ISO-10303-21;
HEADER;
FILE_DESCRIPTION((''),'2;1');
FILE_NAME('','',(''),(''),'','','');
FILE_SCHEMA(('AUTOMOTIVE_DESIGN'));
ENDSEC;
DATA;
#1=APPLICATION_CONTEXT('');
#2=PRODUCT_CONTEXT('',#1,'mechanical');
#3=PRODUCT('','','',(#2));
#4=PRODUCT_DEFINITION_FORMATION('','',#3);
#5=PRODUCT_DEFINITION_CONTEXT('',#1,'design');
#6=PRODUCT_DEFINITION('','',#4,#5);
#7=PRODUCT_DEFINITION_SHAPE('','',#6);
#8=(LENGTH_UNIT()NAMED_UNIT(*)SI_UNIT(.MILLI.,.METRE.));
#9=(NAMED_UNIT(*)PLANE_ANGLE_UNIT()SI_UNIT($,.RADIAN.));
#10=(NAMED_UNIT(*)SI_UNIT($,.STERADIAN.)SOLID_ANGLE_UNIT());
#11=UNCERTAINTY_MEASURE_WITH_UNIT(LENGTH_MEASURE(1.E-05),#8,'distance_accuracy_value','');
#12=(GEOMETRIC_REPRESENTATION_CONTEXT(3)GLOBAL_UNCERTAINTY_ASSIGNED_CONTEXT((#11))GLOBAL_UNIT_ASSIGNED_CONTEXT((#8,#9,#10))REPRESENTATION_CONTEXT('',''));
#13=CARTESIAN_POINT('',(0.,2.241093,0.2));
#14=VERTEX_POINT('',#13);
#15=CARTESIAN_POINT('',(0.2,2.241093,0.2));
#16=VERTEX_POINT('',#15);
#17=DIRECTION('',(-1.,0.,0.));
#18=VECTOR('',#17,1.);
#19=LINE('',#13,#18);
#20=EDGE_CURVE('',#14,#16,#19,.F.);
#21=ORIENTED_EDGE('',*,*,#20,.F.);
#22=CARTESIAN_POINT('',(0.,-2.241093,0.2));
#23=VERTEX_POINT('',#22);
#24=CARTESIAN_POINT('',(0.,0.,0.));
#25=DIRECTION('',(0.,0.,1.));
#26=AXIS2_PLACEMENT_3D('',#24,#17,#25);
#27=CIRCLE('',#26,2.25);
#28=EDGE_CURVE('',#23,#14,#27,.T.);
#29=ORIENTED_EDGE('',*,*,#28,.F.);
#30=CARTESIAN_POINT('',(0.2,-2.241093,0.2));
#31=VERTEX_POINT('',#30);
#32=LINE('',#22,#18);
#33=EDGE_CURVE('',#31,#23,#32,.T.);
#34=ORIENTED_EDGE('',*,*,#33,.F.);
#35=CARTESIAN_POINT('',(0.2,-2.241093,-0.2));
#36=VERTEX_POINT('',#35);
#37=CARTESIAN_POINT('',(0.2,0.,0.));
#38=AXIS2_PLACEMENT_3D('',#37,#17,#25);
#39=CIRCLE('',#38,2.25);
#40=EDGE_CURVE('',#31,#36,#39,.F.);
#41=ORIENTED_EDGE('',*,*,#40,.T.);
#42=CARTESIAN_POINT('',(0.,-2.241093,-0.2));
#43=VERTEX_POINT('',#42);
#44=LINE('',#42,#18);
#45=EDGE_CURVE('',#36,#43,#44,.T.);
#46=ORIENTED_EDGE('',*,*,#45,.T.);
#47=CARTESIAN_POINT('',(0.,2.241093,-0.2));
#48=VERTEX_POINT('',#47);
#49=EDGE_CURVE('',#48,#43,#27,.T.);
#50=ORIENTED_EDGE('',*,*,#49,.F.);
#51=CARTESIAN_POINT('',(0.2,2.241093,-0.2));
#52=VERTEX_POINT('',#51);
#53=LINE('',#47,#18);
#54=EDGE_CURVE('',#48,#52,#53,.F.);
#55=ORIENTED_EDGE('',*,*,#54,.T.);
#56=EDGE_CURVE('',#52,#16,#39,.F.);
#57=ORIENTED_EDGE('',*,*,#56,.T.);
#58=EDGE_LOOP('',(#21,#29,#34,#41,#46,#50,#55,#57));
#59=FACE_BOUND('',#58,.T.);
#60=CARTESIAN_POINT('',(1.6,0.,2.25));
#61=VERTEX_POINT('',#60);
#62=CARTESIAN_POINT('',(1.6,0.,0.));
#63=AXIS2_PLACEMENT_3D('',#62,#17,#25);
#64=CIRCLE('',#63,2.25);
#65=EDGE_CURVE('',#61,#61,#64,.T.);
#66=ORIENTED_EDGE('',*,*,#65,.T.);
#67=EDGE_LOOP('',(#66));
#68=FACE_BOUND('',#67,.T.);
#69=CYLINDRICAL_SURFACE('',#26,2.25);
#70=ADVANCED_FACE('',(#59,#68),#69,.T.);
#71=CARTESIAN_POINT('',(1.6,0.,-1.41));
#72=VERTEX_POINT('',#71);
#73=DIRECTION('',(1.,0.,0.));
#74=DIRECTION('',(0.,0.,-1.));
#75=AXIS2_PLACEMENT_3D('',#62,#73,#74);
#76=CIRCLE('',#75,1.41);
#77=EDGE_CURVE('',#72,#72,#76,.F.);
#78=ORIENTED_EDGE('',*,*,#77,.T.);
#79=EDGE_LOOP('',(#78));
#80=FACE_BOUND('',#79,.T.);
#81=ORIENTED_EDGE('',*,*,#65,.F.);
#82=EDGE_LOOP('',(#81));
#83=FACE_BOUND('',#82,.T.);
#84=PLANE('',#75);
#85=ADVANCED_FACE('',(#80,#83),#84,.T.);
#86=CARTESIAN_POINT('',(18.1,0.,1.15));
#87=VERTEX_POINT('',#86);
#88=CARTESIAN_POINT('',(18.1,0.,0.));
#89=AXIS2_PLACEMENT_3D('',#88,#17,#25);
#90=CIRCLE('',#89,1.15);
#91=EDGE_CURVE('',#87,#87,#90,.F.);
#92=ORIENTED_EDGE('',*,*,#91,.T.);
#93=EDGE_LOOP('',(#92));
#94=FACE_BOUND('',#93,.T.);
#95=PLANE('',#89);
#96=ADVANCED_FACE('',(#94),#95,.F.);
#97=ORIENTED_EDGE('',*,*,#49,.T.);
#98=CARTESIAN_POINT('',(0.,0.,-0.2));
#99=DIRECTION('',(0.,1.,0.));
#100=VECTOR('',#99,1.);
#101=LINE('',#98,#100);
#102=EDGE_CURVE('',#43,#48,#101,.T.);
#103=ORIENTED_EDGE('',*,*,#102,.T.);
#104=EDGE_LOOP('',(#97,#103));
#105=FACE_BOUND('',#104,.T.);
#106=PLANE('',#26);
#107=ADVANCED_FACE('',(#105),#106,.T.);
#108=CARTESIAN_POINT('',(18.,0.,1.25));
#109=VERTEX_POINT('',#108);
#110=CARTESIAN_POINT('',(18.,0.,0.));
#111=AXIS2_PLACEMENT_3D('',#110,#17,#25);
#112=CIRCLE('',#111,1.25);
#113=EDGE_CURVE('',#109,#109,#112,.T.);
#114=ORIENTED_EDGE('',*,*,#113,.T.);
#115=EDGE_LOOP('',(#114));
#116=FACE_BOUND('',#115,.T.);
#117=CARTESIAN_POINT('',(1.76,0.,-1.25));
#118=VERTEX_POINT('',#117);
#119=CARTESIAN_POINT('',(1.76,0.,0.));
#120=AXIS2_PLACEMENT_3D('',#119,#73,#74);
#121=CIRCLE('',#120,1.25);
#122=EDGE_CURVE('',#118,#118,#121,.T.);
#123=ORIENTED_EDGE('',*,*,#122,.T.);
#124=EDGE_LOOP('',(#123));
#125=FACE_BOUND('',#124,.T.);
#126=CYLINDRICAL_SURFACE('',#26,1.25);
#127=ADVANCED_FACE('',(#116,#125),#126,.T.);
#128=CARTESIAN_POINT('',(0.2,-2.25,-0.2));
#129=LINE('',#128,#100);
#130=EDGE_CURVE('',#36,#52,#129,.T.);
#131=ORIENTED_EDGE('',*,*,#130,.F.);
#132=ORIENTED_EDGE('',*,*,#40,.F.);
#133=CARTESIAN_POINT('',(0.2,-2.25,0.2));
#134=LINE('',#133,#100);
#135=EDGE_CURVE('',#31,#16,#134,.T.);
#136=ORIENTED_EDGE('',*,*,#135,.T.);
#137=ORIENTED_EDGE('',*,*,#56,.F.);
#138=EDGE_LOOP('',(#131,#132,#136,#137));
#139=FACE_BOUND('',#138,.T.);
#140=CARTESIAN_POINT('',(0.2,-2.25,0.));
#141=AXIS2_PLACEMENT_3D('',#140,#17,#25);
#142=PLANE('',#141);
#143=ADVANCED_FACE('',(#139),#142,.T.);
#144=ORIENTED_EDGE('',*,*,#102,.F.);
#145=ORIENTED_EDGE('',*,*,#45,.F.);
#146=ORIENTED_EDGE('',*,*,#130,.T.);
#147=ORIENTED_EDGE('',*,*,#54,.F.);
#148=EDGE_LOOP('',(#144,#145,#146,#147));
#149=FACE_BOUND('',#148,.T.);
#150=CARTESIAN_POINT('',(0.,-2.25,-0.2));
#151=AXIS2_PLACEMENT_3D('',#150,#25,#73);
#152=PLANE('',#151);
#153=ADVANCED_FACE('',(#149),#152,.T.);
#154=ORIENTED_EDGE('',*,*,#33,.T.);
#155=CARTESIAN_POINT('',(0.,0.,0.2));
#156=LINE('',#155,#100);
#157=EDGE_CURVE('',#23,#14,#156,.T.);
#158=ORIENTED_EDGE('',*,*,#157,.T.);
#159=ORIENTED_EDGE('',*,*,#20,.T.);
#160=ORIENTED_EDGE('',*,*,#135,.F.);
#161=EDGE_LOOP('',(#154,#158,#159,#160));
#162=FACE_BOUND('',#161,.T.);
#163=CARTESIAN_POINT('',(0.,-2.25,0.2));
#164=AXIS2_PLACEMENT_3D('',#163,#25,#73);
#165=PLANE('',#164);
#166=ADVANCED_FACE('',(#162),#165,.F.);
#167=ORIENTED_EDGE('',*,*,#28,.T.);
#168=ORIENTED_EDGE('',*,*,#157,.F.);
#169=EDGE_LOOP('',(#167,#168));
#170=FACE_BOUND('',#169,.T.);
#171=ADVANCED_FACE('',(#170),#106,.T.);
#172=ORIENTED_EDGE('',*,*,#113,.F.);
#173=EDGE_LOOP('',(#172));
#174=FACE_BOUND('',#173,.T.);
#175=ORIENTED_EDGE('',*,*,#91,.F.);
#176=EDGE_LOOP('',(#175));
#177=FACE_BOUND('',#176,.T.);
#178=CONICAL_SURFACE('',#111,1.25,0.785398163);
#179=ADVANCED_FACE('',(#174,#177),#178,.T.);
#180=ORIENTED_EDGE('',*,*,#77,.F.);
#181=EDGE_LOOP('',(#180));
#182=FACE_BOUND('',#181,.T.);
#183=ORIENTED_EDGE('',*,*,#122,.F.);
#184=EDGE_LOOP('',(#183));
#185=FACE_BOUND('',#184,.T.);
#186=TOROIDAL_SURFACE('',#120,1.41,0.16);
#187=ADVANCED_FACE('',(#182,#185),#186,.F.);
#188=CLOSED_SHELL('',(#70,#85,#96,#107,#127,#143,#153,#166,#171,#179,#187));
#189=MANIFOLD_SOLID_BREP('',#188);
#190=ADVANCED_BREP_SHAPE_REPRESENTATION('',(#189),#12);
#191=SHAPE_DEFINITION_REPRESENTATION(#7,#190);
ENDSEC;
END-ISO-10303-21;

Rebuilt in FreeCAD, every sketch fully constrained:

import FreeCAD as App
import Part
import Sketcher
from FreeCAD import Vector


def edges_at(feature, points):
    """Names of the edges that pass closest to the given points."""
    edges = feature.Shape.Edges
    near = lambda p: min(range(len(edges)), key=lambda i: edges[i].distToShape(Part.Vertex(*p))[0])
    return sorted({f"Edge{near(p) + 1}" for p in points})


def add_polygon(sketch, points):
    """Adds a closed chain of lines whose ends are joined by coincident constraints."""
    first, n = sketch.GeometryCount, len(points)
    for a, b in zip(points, points[1:] + points[:1]):
        sketch.addGeometry(Part.LineSegment(App.Vector(*a, 0), App.Vector(*b, 0)), False)
    for i in range(n):
        sketch.addConstraint(Sketcher.Constraint("Coincident", first + i, 2, first + (i + 1) % n, 1))

doc = App.newDocument("Part")
body = doc.addObject("PartDesign::Body", "Body")

sketch1 = body.newObject("Sketcher::SketchObject", "Sketch")
sketch1.AttachmentSupport = (doc.getObject("XY_Plane"), [""])
sketch1.MapMode = "FlatFace"
add_polygon(sketch1, [(0, 2.2), (0, 0), (18.1, 0), (18.1, 1.2), (1.6, 1.2), (1.6, 2.2)])
sketch1.addConstraint(Sketcher.Constraint("Vertical", 0))
sketch1.addConstraint(Sketcher.Constraint("Horizontal", 1))
sketch1.addConstraint(Sketcher.Constraint("Vertical", 2))
sketch1.addConstraint(Sketcher.Constraint("Horizontal", 3))
sketch1.addConstraint(Sketcher.Constraint("Vertical", 4))
sketch1.addConstraint(Sketcher.Constraint("Horizontal", 5))
sketch1.addConstraint(Sketcher.Constraint("Coincident", 0, 2, -1, 1))
sketch1.addConstraint(Sketcher.Constraint("DistanceY", 4, 1, 4, 2, 1.0))
sketch1.addConstraint(Sketcher.Constraint("DistanceX", 1, 1, 1, 2, 18.1))
sketch1.addConstraint(Sketcher.Constraint("DistanceX", 3, 2, 3, 1, 16.5))
sketch1.addConstraint(Sketcher.Constraint("DistanceY", 0, 2, 0, 1, 2.25))
revolution = body.newObject("PartDesign::Revolution", "Revolution")
revolution.Profile = sketch1
revolution.ReferenceAxis = (sketch1, ["H_Axis"])
revolution.Angle = 360
doc.recompute()

chamfer = body.newObject("PartDesign::Chamfer", "Chamfer")
chamfer.Base = (revolution, edges_at(revolution, [(18.1, 0, -1.25)]))
chamfer.Size = 0.1
doc.recompute()

fillet = body.newObject("PartDesign::Fillet", "Fillet")
fillet.Base = (chamfer, edges_at(chamfer, [(1.6, 0, -1.25)]))
fillet.Radius = 0.16

sketch2 = body.newObject("Sketcher::SketchObject", "Sketch001")
sketch2.AttachmentSupport = (doc.getObject("XZ_Plane"), [""])
sketch2.MapMode = "FlatFace"
add_polygon(sketch2, [(0, 0.2), (0.2, 0.2), (0.2, -0.2), (0, -0.2)])
sketch2.addConstraint(Sketcher.Constraint("Horizontal", 0))
sketch2.addConstraint(Sketcher.Constraint("Vertical", 1))
sketch2.addConstraint(Sketcher.Constraint("Horizontal", 2))
sketch2.addConstraint(Sketcher.Constraint("Vertical", 3))
sketch2.addConstraint(Sketcher.Constraint("Symmetric", 2, 2, 3, 2, -1, 1))
sketch2.addConstraint(Sketcher.Constraint("DistanceX", 0, 1, 0, 2, 0.2))
sketch2.addConstraint(Sketcher.Constraint("DistanceY", 1, 2, 1, 1, 0.4))
pocket1 = body.newObject("PartDesign::Pocket", "Pocket")
pocket1.Profile = sketch2
pocket1.Type = "ThroughAll"
pocket1.Midplane = True

doc.recompute()
